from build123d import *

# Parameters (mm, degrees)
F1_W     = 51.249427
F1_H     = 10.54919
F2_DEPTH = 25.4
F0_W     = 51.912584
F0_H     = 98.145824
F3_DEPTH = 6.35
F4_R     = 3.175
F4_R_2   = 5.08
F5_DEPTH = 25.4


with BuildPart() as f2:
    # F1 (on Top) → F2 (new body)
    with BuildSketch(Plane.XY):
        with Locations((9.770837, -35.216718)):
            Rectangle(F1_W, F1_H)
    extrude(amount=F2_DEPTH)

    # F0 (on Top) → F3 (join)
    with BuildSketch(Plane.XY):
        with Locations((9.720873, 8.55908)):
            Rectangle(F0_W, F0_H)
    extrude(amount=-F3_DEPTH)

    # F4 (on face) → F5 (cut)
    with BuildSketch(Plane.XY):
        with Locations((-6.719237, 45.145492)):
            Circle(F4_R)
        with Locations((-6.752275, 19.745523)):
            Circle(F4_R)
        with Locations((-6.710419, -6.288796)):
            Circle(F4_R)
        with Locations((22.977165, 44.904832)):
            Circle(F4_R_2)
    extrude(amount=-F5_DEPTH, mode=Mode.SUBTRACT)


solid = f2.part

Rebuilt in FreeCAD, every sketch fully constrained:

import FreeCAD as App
import Part
import Sketcher
Q = App.Units.Quantity

doc = App.newDocument("Part")
body = doc.addObject("PartDesign::Body", "Body")

# Sketch on XY plane
sketch1 = body.newObject("Sketcher::SketchObject", "Sketch")
sketch1.AttachmentSupport = (doc.getObject("XY_Plane"), [""])
sketch1.MapMode = "FlatFace"
sketch1.addGeometry([
    Part.LineSegment(App.Vector(-16, -30, 0), App.Vector(-16, -40, 0)),
    Part.LineSegment(App.Vector(-16, -40, 0), App.Vector(35, -40, 0)),
    Part.LineSegment(App.Vector(35, -40, 0), App.Vector(35, -30, 0)),
    Part.LineSegment(App.Vector(35, -30, 0), App.Vector(-16, -30, 0)),
], False)
sketch1.addConstraint([
    Sketcher.Constraint("Coincident", 0, 2, 1, 1),
    Sketcher.Constraint("Coincident", 1, 2, 2, 1),
    Sketcher.Constraint("Coincident", 2, 2, 3, 1),
    Sketcher.Constraint("Coincident", 3, 2, 0, 1),
    Sketcher.Constraint("Vertical", 0),
    Sketcher.Constraint("Horizontal", 1),
    Sketcher.Constraint("Vertical", 2),
    Sketcher.Constraint("Horizontal", 3),
    Sketcher.Constraint("DistanceY", 0, 2, 0, 1, 10.54919),
    Sketcher.Constraint("DistanceX", 1, 1, 1, 2, 51.249427),
    Sketcher.Constraint("DistanceX", -1, 1, 1, 2, 35.39555),
    Sketcher.Constraint("DistanceY", 0, 2, -1, 1, 40.491313),
])
pad1 = body.newObject("PartDesign::Pad", "Pad")
pad1.Profile = sketch1
pad1.Length = Q("1 in")

# Sketch on XY plane
sketch2 = body.newObject("Sketcher::SketchObject", "Sketch001")
sketch2.AttachmentSupport = (doc.getObject("XY_Plane"), [""])
sketch2.MapMode = "FlatFace"
sketch2.addGeometry([
    Part.LineSegment(App.Vector(-16, 58, 0), App.Vector(-16, -41, 0)),
    Part.LineSegment(App.Vector(-16, -41, 0), App.Vector(36, -41, 0)),
    Part.LineSegment(App.Vector(36, -41, 0), App.Vector(36, 58, 0)),
    Part.LineSegment(App.Vector(36, 58, 0), App.Vector(-16, 58, 0)),
], False)
sketch2.addConstraint([
    Sketcher.Constraint("Coincident", 0, 2, 1, 1),
    Sketcher.Constraint("Coincident", 1, 2, 2, 1),
    Sketcher.Constraint("Coincident", 2, 2, 3, 1),
    Sketcher.Constraint("Coincident", 3, 2, 0, 1),
    Sketcher.Constraint("Vertical", 0),
    Sketcher.Constraint("Horizontal", 1),
    Sketcher.Constraint("Vertical", 2),
    Sketcher.Constraint("Horizontal", 3),
    Sketcher.Constraint("DistanceX", 1, 1, 1, 2, 51.912584),
    Sketcher.Constraint("DistanceY", 0, 2, 0, 1, 98.145824),
    Sketcher.Constraint("DistanceX", 0, 2, -1, 1, 16.235419),
    Sketcher.Constraint("DistanceY", -1, 1, 2, 2, 57.631992),
])
pad2 = body.newObject("PartDesign::Pad", "Pad001")
pad2.Profile = sketch2
pad2.Length = Q("0.25 in")
pad2.Reversed = True

# Sketch on XY plane
sketch3 = body.newObject("Sketcher::SketchObject", "Sketch002")
sketch3.AttachmentSupport = (doc.getObject("XY_Plane"), [""])
sketch3.MapMode = "FlatFace"
sketch3.addGeometry([
    Part.Circle(App.Vector(-6.7, 45.1, 0), App.Vector(0, 0, 1), 3.2),
    Part.Circle(App.Vector(-6.8, 19.7, 0), App.Vector(0, 0, 1), 3.2),
    Part.Circle(App.Vector(-6.7, -6.3, 0), App.Vector(0, 0, 1), 3.2),
    Part.Circle(App.Vector(23, 44.9, 0), App.Vector(0, 0, 1), 5.1),
], False)
sketch3.addConstraint([
    Sketcher.Constraint("Equal", 0, 1),
    Sketcher.Constraint("Equal", 1, 2),
    Sketcher.Constraint("Diameter", 3, Q("0.4 in")),
    Sketcher.Constraint("Diameter", 0, Q("0.25 in")),
    Sketcher.Constraint("DistanceX", 0, 3, 3, 3, 29.696402),
    Sketcher.Constraint("DistanceY", -1, 1, 0, 3, 45.145492),
    Sketcher.Constraint("DistanceX", 2, 3, -1, 1, 6.710419),
    Sketcher.Constraint("DistanceX", 1, 3, 0, 3, 0.033038),
    Sketcher.Constraint("DistanceY", 1, 3, 0, 3, 25.399969),
    Sketcher.Constraint("DistanceY", 2, 3, 1, 3, 26.034319),
    Sketcher.Constraint("DistanceY", 3, 3, 0, 3, 0.24066),
    Sketcher.Constraint("DistanceX", 0, 3, -1, 1, 6.719237),
])
pocket1 = body.newObject("PartDesign::Pocket", "Pocket")
pocket1.Profile = sketch3
pocket1.Length = Q("1 in")

doc.recompute()
